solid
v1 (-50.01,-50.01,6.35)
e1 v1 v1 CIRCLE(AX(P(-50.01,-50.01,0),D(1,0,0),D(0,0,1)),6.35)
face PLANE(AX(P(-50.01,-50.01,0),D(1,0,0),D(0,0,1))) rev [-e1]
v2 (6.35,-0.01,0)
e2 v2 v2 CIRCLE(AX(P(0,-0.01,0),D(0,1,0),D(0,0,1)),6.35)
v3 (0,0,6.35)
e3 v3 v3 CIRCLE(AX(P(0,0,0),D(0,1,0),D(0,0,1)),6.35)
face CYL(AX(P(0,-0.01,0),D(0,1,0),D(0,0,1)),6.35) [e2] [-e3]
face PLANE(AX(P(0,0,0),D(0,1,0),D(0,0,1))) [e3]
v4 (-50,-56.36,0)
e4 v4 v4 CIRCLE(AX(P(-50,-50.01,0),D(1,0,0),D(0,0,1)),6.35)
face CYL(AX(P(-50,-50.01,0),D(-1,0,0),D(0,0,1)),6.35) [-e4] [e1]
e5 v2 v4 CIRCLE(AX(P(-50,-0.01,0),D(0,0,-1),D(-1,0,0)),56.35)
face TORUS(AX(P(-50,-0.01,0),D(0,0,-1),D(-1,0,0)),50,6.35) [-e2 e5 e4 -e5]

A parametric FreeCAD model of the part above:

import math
import FreeCAD as App
import Part
import Sketcher
from FreeCAD import Vector
Q = App.Units.Quantity

doc = App.newDocument("Part")
params = doc.addObject("Spreadsheet::Sheet", "Params")
for row, (alias, value) in enumerate([
    ("sketch1_diameter", "12.7 mm"),
    ("sketch2_radius", "50 mm"),
    ("sketch2_width", "0.01 mm"),
], start=1):
    params.set(f"A{row}", alias)
    params.set(f"B{row}", "=" + value)
    params.setAlias(f"B{row}", alias)

body = doc.addObject("PartDesign::Body", "Body")

sketch1 = body.newObject("Sketcher::SketchObject", "Sketch")
sketch1.AttachmentSupport = (doc.getObject("XZ_Plane"), [""])
sketch1.MapMode = "FlatFace"
sketch1.addGeometry(Part.Circle(Vector(0, 0, 0), Vector(0, 0, 1), 6), False)
sketch1.addConstraint(Sketcher.Constraint("Coincident", 0, 3, -1, 1))
sketch1.addConstraint(Sketcher.Constraint("Diameter", 0, Q("12.7 mm")))
sketch1.setExpression("Constraints[1]", "Params.sketch1_diameter")

sketch2 = body.newObject("Sketcher::SketchObject", "Sketch001")
sketch2.AttachmentSupport = (doc.getObject("XY_Plane"), [""])
sketch2.MapMode = "FlatFace"
sketch2.addGeometry(Part.LineSegment(Vector(0, 0, 0), Vector(0, -0.01, 0)), False)
sketch2.addGeometry(Part.ArcOfCircle(Part.Circle(Vector(-50, -0.01, 0), Vector(0, 0, 1), 50), math.radians(-90), math.radians(0)), False)
sketch2.addGeometry(Part.LineSegment(Vector(-50, -50.01, 0), Vector(-50.01, -50.01, 0)), False)
sketch2.addConstraint(Sketcher.Constraint("Tangent", 0, 2, 1, 2))
sketch2.addConstraint(Sketcher.Constraint("Tangent", 1, 1, 2, 1))
sketch2.addConstraint(Sketcher.Constraint("Coincident", 0, 1, -1, 1))
sketch2.addConstraint(Sketcher.Constraint("Horizontal", 1, 3, 0, 2))
sketch2.addConstraint(Sketcher.Constraint("Equal", 2, 0))
sketch2.addConstraint(Sketcher.Constraint("Radius", 1, Q("50 mm")))
sketch2.addConstraint(Sketcher.Constraint("DistanceX", 1, 1, -1, 1, Q("50 mm")))
sketch2.addConstraint(Sketcher.Constraint("DistanceX", 2, 2, 2, 1, Q("0.01 mm")))
sketch2.setExpression("Constraints[5]", "Params.sketch2_radius")
sketch2.setExpression("Constraints[7]", "Params.sketch2_width")
doc.recompute()

additivepipe = body.newObject("PartDesign::AdditivePipe", "AdditivePipe")
additivepipe.Profile = sketch1
additivepipe.Spine = (sketch2, ["Edge1", "Edge2", "Edge3"])

doc.recompute()
